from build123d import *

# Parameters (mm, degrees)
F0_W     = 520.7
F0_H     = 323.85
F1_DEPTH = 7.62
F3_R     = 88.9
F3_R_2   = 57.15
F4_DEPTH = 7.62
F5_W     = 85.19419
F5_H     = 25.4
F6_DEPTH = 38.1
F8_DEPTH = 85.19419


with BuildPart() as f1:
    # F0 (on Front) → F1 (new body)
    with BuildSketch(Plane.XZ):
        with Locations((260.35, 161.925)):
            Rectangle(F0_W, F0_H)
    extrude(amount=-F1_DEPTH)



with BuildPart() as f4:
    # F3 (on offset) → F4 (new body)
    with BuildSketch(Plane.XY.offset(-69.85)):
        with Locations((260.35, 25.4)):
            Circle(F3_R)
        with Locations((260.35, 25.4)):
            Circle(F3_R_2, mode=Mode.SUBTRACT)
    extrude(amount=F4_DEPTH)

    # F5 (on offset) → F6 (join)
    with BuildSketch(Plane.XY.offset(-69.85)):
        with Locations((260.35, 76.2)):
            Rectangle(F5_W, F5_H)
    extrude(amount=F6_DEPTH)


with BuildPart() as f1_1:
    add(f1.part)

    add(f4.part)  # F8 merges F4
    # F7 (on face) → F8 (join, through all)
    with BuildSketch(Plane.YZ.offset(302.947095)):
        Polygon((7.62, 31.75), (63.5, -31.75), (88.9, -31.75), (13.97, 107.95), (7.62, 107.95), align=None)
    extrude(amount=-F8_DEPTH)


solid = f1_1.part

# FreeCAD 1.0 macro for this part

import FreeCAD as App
import Part
import Sketcher
Q = App.Units.Quantity

doc = App.newDocument("Part")
body = doc.addObject("PartDesign::Body", "Body")

# Sketch on XZ plane
sketch1 = body.newObject("Sketcher::SketchObject", "Sketch")
sketch1.AttachmentSupport = (doc.getObject("XZ_Plane"), [""])
sketch1.MapMode = "FlatFace"
sketch1.addGeometry(Part.LineSegment(App.Vector(0, 324, 0), App.Vector(0, 0, 0)), False)
sketch1.addGeometry(Part.LineSegment(App.Vector(0, 0, 0), App.Vector(521, 0, 0)), False)
sketch1.addGeometry(Part.LineSegment(App.Vector(521, 0, 0), App.Vector(521, 324, 0)), False)
sketch1.addGeometry(Part.LineSegment(App.Vector(521, 324, 0), App.Vector(0, 324, 0)), False)
sketch1.addConstraint(Sketcher.Constraint("Coincident", 0, 2, 1, 1))
sketch1.addConstraint(Sketcher.Constraint("Coincident", 1, 2, 2, 1))
sketch1.addConstraint(Sketcher.Constraint("Coincident", 2, 2, 3, 1))
sketch1.addConstraint(Sketcher.Constraint("Coincident", 3, 2, 0, 1))
sketch1.addConstraint(Sketcher.Constraint("Vertical", 0))
sketch1.addConstraint(Sketcher.Constraint("Horizontal", 1))
sketch1.addConstraint(Sketcher.Constraint("Vertical", 2))
sketch1.addConstraint(Sketcher.Constraint("Horizontal", 3))
sketch1.addConstraint(Sketcher.Constraint("Coincident", 0, 2, -1, 1))
sketch1.addConstraint(Sketcher.Constraint("DistanceX", 1, 1, 1, 2, Q("20.5 in")))
sketch1.addConstraint(Sketcher.Constraint("DistanceY", 0, 2, 0, 1, Q("12.75 in")))
pad1 = body.newObject("PartDesign::Pad", "Pad")
pad1.Profile = sketch1
pad1.Length = Q("0.3 in")
pad1.Reversed = True
body2 = doc.addObject("PartDesign::Body", "Body001")

# Sketch on XY plane
sketch2 = body2.newObject("Sketcher::SketchObject", "Sketch001")
sketch2.AttachmentSupport = (doc.getObject("XY_Plane001"), [""])
sketch2.MapMode = "FlatFace"
sketch2.AttachmentOffset = App.Placement(App.Vector(0, 0, -2.75 * 25.4), App.Rotation())
sketch2.addGeometry(Part.Circle(App.Vector(260, 25, 0), App.Vector(0, 0, 1), 89), False)
sketch2.addGeometry(Part.Circle(App.Vector(260, 25, 0), App.Vector(0, 0, 1), 57), False)
sketch2.addConstraint(Sketcher.Constraint("Coincident", 1, 3, 0, 3))
sketch2.addConstraint(Sketcher.Constraint("Diameter", 0, Q("7 in")))
sketch2.addConstraint(Sketcher.Constraint("Diameter", 1, Q("4.5 in")))
sketch2.addConstraint(Sketcher.Constraint("DistanceY", -1, 1, 0, 3, Q("1 in")))
sketch2.addConstraint(Sketcher.Constraint("DistanceX", -1, 1, 0, 3, Q("10.25 in")))
pad2 = body2.newObject("PartDesign::Pad", "Pad001")
pad2.Profile = sketch2
pad2.Length = Q("0.3 in")

# Sketch on XY plane
sketch3 = body2.newObject("Sketcher::SketchObject", "Sketch002")
sketch3.AttachmentSupport = (doc.getObject("XY_Plane001"), [""])
sketch3.MapMode = "FlatFace"
sketch3.AttachmentOffset = App.Placement(App.Vector(0, 0, -2.75 * 25.4), App.Rotation())
sketch3.addGeometry(Part.LineSegment(App.Vector(218, 89, 0), App.Vector(218, 64, 0)), False)
sketch3.addGeometry(Part.LineSegment(App.Vector(218, 64, 0), App.Vector(303, 64, 0)), False)
sketch3.addGeometry(Part.LineSegment(App.Vector(303, 64, 0), App.Vector(303, 89, 0)), False)
sketch3.addGeometry(Part.LineSegment(App.Vector(303, 89, 0), App.Vector(218, 89, 0)), False)
sketch3.addConstraint(Sketcher.Constraint("Coincident", 0, 2, 1, 1))
sketch3.addConstraint(Sketcher.Constraint("Coincident", 1, 2, 2, 1))
sketch3.addConstraint(Sketcher.Constraint("Coincident", 2, 2, 3, 1))
sketch3.addConstraint(Sketcher.Constraint("Coincident", 3, 2, 0, 1))
sketch3.addConstraint(Sketcher.Constraint("Vertical", 0))
sketch3.addConstraint(Sketcher.Constraint("Horizontal", 1))
sketch3.addConstraint(Sketcher.Constraint("Vertical", 2))
sketch3.addConstraint(Sketcher.Constraint("Horizontal", 3))
sketch3.addConstraint(Sketcher.Constraint("DistanceY", 0, 2, 0, 1, Q("1 in")))
sketch3.addConstraint(Sketcher.Constraint("DistanceY", -1, 1, 0, 2, Q("2.5 in")))
sketch3.addConstraint(Sketcher.Constraint("DistanceX", 1, 1, 1, 2, Q("85.19419 mm")))
sketch3.addConstraint(Sketcher.Constraint("DistanceX", -1, 1, 0, 2, Q("217.752905 mm")))
pad3 = body2.newObject("PartDesign::Pad", "Pad002")
pad3.Profile = sketch3
pad3.Length = Q("1.5 in")
body.AllowCompound = True
doc.recompute()

boolean = body.newObject("PartDesign::Boolean", "Boolean")
boolean.Type = "Fuse"
boolean.addObjects([body2])

# Sketch on YZ plane
sketch4 = body.newObject("Sketcher::SketchObject", "Sketch003")
sketch4.AttachmentSupport = (doc.getObject("YZ_Plane"), [""])
sketch4.MapMode = "FlatFace"
sketch4.AttachmentOffset = App.Placement(App.Vector(0, 0, 302.947095), App.Rotation())
sketch4.addGeometry(Part.LineSegment(App.Vector(8, 32, 0), App.Vector(64, -32, 0)), False)
sketch4.addGeometry(Part.LineSegment(App.Vector(64, -32, 0), App.Vector(89, -32, 0)), False)
sketch4.addGeometry(Part.LineSegment(App.Vector(89, -32, 0), App.Vector(14, 108, 0)), False)
sketch4.addGeometry(Part.LineSegment(App.Vector(14, 108, 0), App.Vector(8, 108, 0)), False)
sketch4.addGeometry(Part.LineSegment(App.Vector(8, 108, 0), App.Vector(8, 32, 0)), False)
sketch4.addConstraint(Sketcher.Constraint("Coincident", 0, 2, 1, 1))
sketch4.addConstraint(Sketcher.Constraint("Coincident", 1, 2, 2, 1))
sketch4.addConstraint(Sketcher.Constraint("Coincident", 2, 2, 3, 1))
sketch4.addConstraint(Sketcher.Constraint("Coincident", 3, 2, 4, 1))
sketch4.addConstraint(Sketcher.Constraint("Coincident", 4, 2, 0, 1))
sketch4.addConstraint(Sketcher.Constraint("Horizontal", 1))
sketch4.addConstraint(Sketcher.Constraint("Horizontal", 3))
sketch4.addConstraint(Sketcher.Constraint("Vertical", 4))
sketch4.addConstraint(Sketcher.Constraint("DistanceX", 1, 1, 1, 2, Q("1 in")))
sketch4.addConstraint(Sketcher.Constraint("DistanceY", 4, 2, 4, 1, Q("3 in")))
sketch4.addConstraint(Sketcher.Constraint("DistanceX", 3, 2, 3, 1, Q("0.25 in")))
sketch4.addConstraint(Sketcher.Constraint("DistanceX", -1, 1, 0, 2, Q("2.5 in")))
sketch4.addConstraint(Sketcher.Constraint("DistanceX", -1, 1, 3, 2, Q("0.3 in")))
sketch4.addConstraint(Sketcher.Constraint("DistanceY", 0, 2, 2, 2, Q("5.5 in")))
sketch4.addConstraint(Sketcher.Constraint("DistanceY", 0, 2, -1, 1, Q("1.25 in")))
pad4 = body.newObject("PartDesign::Pad", "Pad003")
pad4.Profile = sketch4
pad4.Length = 85.19419
pad4.Reversed = True

doc.recompute()
